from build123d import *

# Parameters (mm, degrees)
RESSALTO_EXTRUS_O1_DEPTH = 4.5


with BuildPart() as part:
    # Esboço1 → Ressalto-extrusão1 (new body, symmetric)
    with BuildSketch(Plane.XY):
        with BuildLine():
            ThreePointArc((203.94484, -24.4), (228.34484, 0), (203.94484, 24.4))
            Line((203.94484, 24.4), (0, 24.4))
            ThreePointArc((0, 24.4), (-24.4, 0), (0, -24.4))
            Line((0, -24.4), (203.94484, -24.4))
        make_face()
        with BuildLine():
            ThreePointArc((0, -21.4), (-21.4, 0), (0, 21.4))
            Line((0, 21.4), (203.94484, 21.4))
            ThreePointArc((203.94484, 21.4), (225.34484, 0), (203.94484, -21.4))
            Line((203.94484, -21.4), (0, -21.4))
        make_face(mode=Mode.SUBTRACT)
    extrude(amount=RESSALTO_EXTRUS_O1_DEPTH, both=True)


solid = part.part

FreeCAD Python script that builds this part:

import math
import FreeCAD as App
import Part
import Sketcher
from FreeCAD import Vector

doc = App.newDocument("Part")
body = doc.addObject("PartDesign::Body", "Body")

sketch1 = body.newObject("Sketcher::SketchObject", "Sketch")
sketch1.AttachmentSupport = (doc.getObject("XY_Plane"), [""])
sketch1.MapMode = "FlatFace"
sketch1.addGeometry(Part.ArcOfCircle(Part.Circle(Vector(204, 0, 0), Vector(0, 0, 1), 24), math.radians(-90), math.radians(90)), False)
sketch1.addGeometry(Part.LineSegment(Vector(204, 24, 0), Vector(0, 24, 0)), False)
sketch1.addGeometry(Part.ArcOfCircle(Part.Circle(Vector(0, 0, 0), Vector(0, 0, 1), 24), math.radians(90), math.radians(270)), False)
sketch1.addGeometry(Part.LineSegment(Vector(0, -24, 0), Vector(204, -24, 0)), False)
sketch1.addGeometry(Part.LineSegment(Vector(204, -21, 0), Vector(0, -21, 0)), False)
sketch1.addGeometry(Part.ArcOfCircle(Part.Circle(Vector(0, 0, 0), Vector(0, 0, 1), 21), math.radians(90), math.radians(270)), False)
sketch1.addGeometry(Part.LineSegment(Vector(0, 21, 0), Vector(204, 21, 0)), False)
sketch1.addGeometry(Part.ArcOfCircle(Part.Circle(Vector(204, 0, 0), Vector(0, 0, 1), 21), math.radians(-90), math.radians(90)), False)
sketch1.addConstraint(Sketcher.Constraint("Tangent", 0, 2, 1, 1))
sketch1.addConstraint(Sketcher.Constraint("Tangent", 1, 2, 2, 1))
sketch1.addConstraint(Sketcher.Constraint("Tangent", 2, 2, 3, 1))
sketch1.addConstraint(Sketcher.Constraint("Tangent", 3, 2, 0, 1))
sketch1.addConstraint(Sketcher.Constraint("Tangent", 4, 2, 5, 2))
sketch1.addConstraint(Sketcher.Constraint("Tangent", 5, 1, 6, 1))
sketch1.addConstraint(Sketcher.Constraint("Tangent", 6, 2, 7, 2))
sketch1.addConstraint(Sketcher.Constraint("Tangent", 7, 1, 4, 1))
sketch1.addConstraint(Sketcher.Constraint("Horizontal", 1))
sketch1.addConstraint(Sketcher.Constraint("Horizontal", 3))
sketch1.addConstraint(Sketcher.Constraint("Horizontal", 4))
sketch1.addConstraint(Sketcher.Constraint("Horizontal", 6))
sketch1.addConstraint(Sketcher.Constraint("Coincident", 2, 3, -1, 1))
sketch1.addConstraint(Sketcher.Constraint("Coincident", 5, 3, -1, 1))
sketch1.addConstraint(Sketcher.Constraint("Vertical", 7, 3, 0, 2))
sketch1.addConstraint(Sketcher.Constraint("Radius", 0, 24.4))
sketch1.addConstraint(Sketcher.Constraint("Radius", 5, 21.4))
sketch1.addConstraint(Sketcher.Constraint("DistanceX", 1, 2, 1, 1, 203.94484))
pad1 = body.newObject("PartDesign::Pad", "Pad")
pad1.Profile = sketch1
pad1.Length = 9
pad1.Midplane = True

doc.recompute()
